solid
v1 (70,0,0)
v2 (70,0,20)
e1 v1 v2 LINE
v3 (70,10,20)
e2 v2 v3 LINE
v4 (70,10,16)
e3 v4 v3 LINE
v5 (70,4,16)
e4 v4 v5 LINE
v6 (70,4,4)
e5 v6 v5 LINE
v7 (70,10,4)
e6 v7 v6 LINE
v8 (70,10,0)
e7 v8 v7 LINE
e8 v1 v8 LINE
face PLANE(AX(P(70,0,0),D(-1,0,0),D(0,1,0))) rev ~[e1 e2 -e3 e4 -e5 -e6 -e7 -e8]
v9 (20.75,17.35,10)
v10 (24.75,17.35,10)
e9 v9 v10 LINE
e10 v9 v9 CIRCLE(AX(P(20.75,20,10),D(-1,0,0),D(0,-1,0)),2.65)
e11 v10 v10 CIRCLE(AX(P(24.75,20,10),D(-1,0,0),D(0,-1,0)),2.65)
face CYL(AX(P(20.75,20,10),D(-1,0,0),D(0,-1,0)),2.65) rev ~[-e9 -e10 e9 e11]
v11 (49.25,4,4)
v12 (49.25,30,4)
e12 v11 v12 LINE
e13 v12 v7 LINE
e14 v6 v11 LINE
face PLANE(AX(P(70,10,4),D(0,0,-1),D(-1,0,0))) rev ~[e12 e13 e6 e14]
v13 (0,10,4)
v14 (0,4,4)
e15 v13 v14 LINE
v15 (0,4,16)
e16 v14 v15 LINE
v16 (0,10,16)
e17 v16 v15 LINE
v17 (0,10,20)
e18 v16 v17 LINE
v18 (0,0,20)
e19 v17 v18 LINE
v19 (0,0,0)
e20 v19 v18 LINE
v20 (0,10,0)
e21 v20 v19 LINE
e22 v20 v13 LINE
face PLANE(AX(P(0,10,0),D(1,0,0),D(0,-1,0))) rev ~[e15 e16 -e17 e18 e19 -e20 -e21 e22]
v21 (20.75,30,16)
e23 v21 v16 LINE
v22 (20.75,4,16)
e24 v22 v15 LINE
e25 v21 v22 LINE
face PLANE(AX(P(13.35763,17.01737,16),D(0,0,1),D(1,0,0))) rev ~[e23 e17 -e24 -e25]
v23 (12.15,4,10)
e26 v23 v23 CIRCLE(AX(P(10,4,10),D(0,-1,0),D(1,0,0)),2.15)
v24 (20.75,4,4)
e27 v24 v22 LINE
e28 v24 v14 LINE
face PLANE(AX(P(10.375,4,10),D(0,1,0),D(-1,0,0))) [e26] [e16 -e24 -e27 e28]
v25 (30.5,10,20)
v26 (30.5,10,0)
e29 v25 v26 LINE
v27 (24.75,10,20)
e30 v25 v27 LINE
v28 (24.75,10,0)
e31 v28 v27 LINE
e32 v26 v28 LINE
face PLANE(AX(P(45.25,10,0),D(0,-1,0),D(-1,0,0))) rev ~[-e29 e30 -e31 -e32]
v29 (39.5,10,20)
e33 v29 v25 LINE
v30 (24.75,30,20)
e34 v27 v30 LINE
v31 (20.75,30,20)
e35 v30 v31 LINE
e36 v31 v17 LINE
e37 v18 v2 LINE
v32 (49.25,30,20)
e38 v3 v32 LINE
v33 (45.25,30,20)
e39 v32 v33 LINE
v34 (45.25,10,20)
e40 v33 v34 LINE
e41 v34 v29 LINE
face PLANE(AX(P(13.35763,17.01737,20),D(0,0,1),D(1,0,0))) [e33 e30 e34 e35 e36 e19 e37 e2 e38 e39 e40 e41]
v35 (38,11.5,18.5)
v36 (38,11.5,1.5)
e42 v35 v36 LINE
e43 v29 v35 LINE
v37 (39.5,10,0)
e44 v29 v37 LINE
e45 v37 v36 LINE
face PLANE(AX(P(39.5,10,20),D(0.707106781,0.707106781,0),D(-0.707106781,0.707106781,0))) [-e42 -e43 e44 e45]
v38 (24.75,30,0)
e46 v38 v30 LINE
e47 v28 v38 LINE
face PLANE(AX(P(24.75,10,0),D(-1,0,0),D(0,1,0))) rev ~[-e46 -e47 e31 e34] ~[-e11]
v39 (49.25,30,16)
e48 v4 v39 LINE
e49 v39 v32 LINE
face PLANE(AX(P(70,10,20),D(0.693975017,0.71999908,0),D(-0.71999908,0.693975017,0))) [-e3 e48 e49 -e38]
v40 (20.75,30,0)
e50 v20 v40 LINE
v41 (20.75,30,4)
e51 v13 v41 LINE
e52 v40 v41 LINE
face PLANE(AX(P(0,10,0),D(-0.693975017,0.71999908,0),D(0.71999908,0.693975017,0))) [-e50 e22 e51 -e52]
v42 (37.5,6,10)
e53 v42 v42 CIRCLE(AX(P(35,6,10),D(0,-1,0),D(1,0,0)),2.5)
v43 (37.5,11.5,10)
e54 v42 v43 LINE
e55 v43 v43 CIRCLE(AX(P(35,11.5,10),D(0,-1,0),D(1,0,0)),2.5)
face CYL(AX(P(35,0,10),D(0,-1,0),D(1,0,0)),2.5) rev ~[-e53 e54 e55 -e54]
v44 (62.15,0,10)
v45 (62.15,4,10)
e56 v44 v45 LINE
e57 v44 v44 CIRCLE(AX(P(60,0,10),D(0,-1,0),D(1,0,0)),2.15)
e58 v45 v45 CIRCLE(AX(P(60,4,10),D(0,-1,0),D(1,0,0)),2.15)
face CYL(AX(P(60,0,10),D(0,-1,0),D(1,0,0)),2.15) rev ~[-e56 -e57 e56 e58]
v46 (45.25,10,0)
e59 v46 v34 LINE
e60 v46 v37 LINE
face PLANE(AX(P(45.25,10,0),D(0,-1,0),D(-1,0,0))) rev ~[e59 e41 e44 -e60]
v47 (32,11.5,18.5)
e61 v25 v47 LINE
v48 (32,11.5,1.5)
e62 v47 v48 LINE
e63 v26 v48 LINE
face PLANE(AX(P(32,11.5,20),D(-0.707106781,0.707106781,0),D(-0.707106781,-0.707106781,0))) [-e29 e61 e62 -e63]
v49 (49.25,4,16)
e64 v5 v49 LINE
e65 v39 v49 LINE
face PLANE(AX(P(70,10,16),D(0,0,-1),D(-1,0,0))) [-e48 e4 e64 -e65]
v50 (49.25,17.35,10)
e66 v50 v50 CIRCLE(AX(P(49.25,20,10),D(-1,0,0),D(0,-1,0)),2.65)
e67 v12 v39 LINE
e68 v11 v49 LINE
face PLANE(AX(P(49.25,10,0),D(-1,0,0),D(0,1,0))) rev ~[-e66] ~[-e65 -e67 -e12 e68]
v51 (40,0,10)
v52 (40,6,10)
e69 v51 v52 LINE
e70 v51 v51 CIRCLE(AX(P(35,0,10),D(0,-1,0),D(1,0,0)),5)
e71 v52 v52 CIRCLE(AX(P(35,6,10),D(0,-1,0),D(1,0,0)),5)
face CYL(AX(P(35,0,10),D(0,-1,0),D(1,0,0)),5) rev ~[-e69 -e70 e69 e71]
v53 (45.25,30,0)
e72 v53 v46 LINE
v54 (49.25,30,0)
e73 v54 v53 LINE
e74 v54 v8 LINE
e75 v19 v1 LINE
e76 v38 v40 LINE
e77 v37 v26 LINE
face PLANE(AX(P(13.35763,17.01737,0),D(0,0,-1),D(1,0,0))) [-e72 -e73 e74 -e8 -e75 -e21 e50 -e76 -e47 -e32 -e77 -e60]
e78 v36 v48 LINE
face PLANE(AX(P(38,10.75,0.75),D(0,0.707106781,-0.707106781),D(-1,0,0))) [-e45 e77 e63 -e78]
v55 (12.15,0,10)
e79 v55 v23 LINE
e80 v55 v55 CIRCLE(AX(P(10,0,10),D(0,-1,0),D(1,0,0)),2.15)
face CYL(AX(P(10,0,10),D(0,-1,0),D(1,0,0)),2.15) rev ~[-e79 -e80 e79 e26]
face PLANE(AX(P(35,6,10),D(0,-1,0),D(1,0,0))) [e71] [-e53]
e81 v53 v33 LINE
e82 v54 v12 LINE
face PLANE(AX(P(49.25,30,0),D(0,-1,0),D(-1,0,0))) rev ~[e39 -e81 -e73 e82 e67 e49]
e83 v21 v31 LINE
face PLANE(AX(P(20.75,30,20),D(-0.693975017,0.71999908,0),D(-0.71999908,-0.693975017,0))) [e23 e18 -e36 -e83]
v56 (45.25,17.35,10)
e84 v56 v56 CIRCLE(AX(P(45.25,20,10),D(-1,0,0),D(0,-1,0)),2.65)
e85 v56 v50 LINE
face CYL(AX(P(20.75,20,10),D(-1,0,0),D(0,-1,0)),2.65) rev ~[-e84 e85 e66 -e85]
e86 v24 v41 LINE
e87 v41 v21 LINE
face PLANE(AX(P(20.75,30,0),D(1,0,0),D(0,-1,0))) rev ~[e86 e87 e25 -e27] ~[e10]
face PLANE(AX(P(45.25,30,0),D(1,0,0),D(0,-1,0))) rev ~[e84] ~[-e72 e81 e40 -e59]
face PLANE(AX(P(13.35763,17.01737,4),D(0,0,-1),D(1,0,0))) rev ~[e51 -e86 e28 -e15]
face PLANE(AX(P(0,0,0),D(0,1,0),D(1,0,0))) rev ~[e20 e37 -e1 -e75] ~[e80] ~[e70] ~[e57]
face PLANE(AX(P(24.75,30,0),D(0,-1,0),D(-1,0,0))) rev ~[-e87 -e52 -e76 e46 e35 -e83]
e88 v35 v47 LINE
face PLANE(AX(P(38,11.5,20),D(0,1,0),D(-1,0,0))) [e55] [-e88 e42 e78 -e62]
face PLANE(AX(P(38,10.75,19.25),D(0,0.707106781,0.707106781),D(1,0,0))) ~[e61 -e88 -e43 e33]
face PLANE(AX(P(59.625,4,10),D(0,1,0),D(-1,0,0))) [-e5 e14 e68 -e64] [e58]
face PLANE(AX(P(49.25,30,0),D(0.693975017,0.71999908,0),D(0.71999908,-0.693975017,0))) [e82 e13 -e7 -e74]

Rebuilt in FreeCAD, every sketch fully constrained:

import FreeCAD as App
import Part
import Sketcher

V = App.Vector
Q = App.Units.Quantity


def edges_at(feature, points):
    """Names of the edges that pass closest to the given points."""
    edges = feature.Shape.Edges
    near = lambda p: min(range(len(edges)), key=lambda i: edges[i].distToShape(Part.Vertex(*p))[0])
    return sorted({f"Edge{near(p) + 1}" for p in points})

doc = App.newDocument("Part")
params = doc.addObject("Spreadsheet::Sheet", "Params")
for row, (alias, value) in enumerate([
    ("sketch1_width", "70 mm"),
    ("sketch1_width2", "4 mm"),
    ("sketch1_height", "10 mm"),
    ("sketch1_height2", "20 mm"),
    ("sketch1_width3", "20.5 mm"),
    ("pad1_length", "20 mm"),
    ("sketch2_width", "9 mm"),
    ("sketch2_width2", "6 mm"),
    ("pad2_length", "20 mm"),
    ("sketch3_height", "12 mm"),
    ("sketch3_width", "20.75 mm"),
    ("pocket1_length", "6 mm"),
    ("sketch4_height", "20 mm"),
    ("sketch4_width", "20.75 mm"),
    ("pad3_length", "4 mm"),
    ("sketch5_height", "20 mm"),
    ("sketch5_width", "20.75 mm"),
    ("pad4_length", "4 mm"),
    ("sketch6_diameter", "5 mm"),
    ("sketch6_diameter2", "4.3 mm"),
    ("sketch7_diameter", "10 mm"),
    ("pocket3_length", "6 mm"),
    ("chamfer_size", "1.5 mm"),
    ("sketch8_diameter", "5.3 mm"),
], start=1):
    params.set(f"A{row}", alias)
    params.set(f"B{row}", "=" + value)
    params.setAlias(f"B{row}", alias)

body = doc.addObject("PartDesign::Body", "Body")

# Sketch on XY plane
sketch1 = body.newObject("Sketcher::SketchObject", "Sketch")
sketch1.AttachmentSupport = (doc.getObject("XY_Plane"), [""])
sketch1.MapMode = "FlatFace"
sketch1.addGeometry(Part.LineSegment(V(0, 10, 0), V(0, 0, 0)), False)
sketch1.addGeometry(Part.LineSegment(V(0, 0, 0), V(70, 0, 0)), False)
sketch1.addGeometry(Part.LineSegment(V(70, 0, 0), V(70, 10, 0)), False)
sketch1.addGeometry(Part.LineSegment(V(70, 10, 0), V(49.2, 10, 0)), False)
sketch1.addGeometry(Part.LineSegment(V(49.2, 10, 0), V(49.2, 30, 0)), False)
sketch1.addGeometry(Part.LineSegment(V(49.2, 30, 0), V(45.2, 30, 0)), False)
sketch1.addGeometry(Part.LineSegment(V(45.2, 30, 0), V(45.2, 10, 0)), False)
sketch1.addGeometry(Part.LineSegment(V(45.2, 10, 0), V(24.8, 10, 0)), False)
sketch1.addGeometry(Part.LineSegment(V(24.8, 10, 0), V(24.8, 30, 0)), False)
sketch1.addGeometry(Part.LineSegment(V(24.8, 30, 0), V(20.8, 30, 0)), False)
sketch1.addGeometry(Part.LineSegment(V(20.8, 30, 0), V(20.8, 10, 0)), False)
sketch1.addGeometry(Part.LineSegment(V(20.8, 10, 0), V(0, 10, 0)), False)
sketch1.addConstraint(Sketcher.Constraint("Coincident", 0, 2, 1, 1))
sketch1.addConstraint(Sketcher.Constraint("Coincident", 1, 2, 2, 1))
sketch1.addConstraint(Sketcher.Constraint("Coincident", 2, 2, 3, 1))
sketch1.addConstraint(Sketcher.Constraint("Coincident", 3, 2, 4, 1))
sketch1.addConstraint(Sketcher.Constraint("Coincident", 4, 2, 5, 1))
sketch1.addConstraint(Sketcher.Constraint("Coincident", 5, 2, 6, 1))
sketch1.addConstraint(Sketcher.Constraint("Coincident", 6, 2, 7, 1))
sketch1.addConstraint(Sketcher.Constraint("Coincident", 7, 2, 8, 1))
sketch1.addConstraint(Sketcher.Constraint("Coincident", 8, 2, 9, 1))
sketch1.addConstraint(Sketcher.Constraint("Coincident", 9, 2, 10, 1))
sketch1.addConstraint(Sketcher.Constraint("Coincident", 10, 2, 11, 1))
sketch1.addConstraint(Sketcher.Constraint("Coincident", 11, 2, 0, 1))
sketch1.addConstraint(Sketcher.Constraint("Vertical", 0))
sketch1.addConstraint(Sketcher.Constraint("Horizontal", 1))
sketch1.addConstraint(Sketcher.Constraint("Vertical", 2))
sketch1.addConstraint(Sketcher.Constraint("Horizontal", 3))
sketch1.addConstraint(Sketcher.Constraint("Vertical", 4))
sketch1.addConstraint(Sketcher.Constraint("Horizontal", 5))
sketch1.addConstraint(Sketcher.Constraint("Vertical", 6))
sketch1.addConstraint(Sketcher.Constraint("Horizontal", 7))
sketch1.addConstraint(Sketcher.Constraint("Vertical", 8))
sketch1.addConstraint(Sketcher.Constraint("Horizontal", 9))
sketch1.addConstraint(Sketcher.Constraint("Vertical", 10))
sketch1.addConstraint(Sketcher.Constraint("Horizontal", 11))
sketch1.addConstraint(Sketcher.Constraint("Coincident", 0, 2, -1, 1))
sketch1.addConstraint(Sketcher.Constraint("Horizontal", 3, 2, 6, 2))
sketch1.addConstraint(Sketcher.Constraint("Horizontal", 5, 2, 8, 2))
sketch1.addConstraint(Sketcher.Constraint("Horizontal", 7, 2, 10, 2))
sketch1.addConstraint(Sketcher.Constraint("Equal", 5, 9))
sketch1.addConstraint(Sketcher.Constraint("Equal", 3, 11))
sketch1.addConstraint(Sketcher.Constraint("DistanceX", 1, 1, 1, 2, Q("70 mm")))
sketch1.addConstraint(Sketcher.Constraint("DistanceX", 5, 2, 5, 1, Q("4 mm")))
sketch1.addConstraint(Sketcher.Constraint("DistanceY", 0, 2, 0, 1, Q("10 mm")))
sketch1.addConstraint(Sketcher.Constraint("DistanceY", 4, 1, 4, 2, Q("20 mm")))
sketch1.addConstraint(Sketcher.Constraint("DistanceX", 7, 2, 7, 1, Q("20.5 mm")))
sketch1.setExpression("Constraints[30]", "Params.sketch1_width")
sketch1.setExpression("Constraints[31]", "Params.sketch1_width2")
sketch1.setExpression("Constraints[32]", "Params.sketch1_height")
sketch1.setExpression("Constraints[33]", "Params.sketch1_height2")
sketch1.setExpression("Constraints[34]", "Params.sketch1_width3")
pad1 = body.newObject("PartDesign::Pad", "Pad")
pad1.Profile = sketch1
pad1.setExpression("Length", "Params.pad1_length")

# Sketch on XY plane
sketch2 = body.newObject("Sketcher::SketchObject", "Sketch001")
sketch2.AttachmentSupport = (doc.getObject("XY_Plane"), [""])
sketch2.MapMode = "FlatFace"
sketch2.AttachmentOffset = App.Placement(V(0, 0, 20), App.Rotation())
sketch2.addGeometry(Part.LineSegment(V(32, 11.5, 0), V(30.5, 10, 0)), False)
sketch2.addGeometry(Part.LineSegment(V(30.5, 10, 0), V(39.5, 10, 0)), False)
sketch2.addGeometry(Part.LineSegment(V(39.5, 10, 0), V(38, 11.5, 0)), False)
sketch2.addGeometry(Part.LineSegment(V(38, 11.5, 0), V(32, 11.5, 0)), False)
sketch2.addConstraint(Sketcher.Constraint("Coincident", 0, 2, 1, 1))
sketch2.addConstraint(Sketcher.Constraint("Coincident", 1, 2, 2, 1))
sketch2.addConstraint(Sketcher.Constraint("Coincident", 2, 2, 3, 1))
sketch2.addConstraint(Sketcher.Constraint("Coincident", 3, 2, 0, 1))
sketch2.addConstraint(Sketcher.Constraint("Horizontal", 1))
sketch2.addConstraint(Sketcher.Constraint("Horizontal", 3))
sketch2.addConstraint(Sketcher.Constraint("Perpendicular", 0, 2))
sketch2.addConstraint(Sketcher.Constraint("Equal", 0, 2))
sketch2.addConstraint(Sketcher.Constraint("DistanceX", 1, 1, 1, 2, Q("9 mm")))
sketch2.addConstraint(Sketcher.Constraint("DistanceX", 3, 2, 3, 1, Q("6 mm")))
sketch2.addConstraint(Sketcher.Constraint("DistanceY", -1, 1, 0, 2, Q("10 mm")))
sketch2.addConstraint(Sketcher.Constraint("DistanceX", -1, 1, 2, 2, Q("38 mm")))
sketch2.setExpression("Constraints[8]", "Params.sketch2_width")
sketch2.setExpression("Constraints[9]", "Params.sketch2_width2")
pad2 = body.newObject("PartDesign::Pad", "Pad001")
pad2.Profile = sketch2
pad2.setExpression("Length", "Params.pad2_length")
pad2.Reversed = True

# Sketch on XZ plane
sketch3 = body.newObject("Sketcher::SketchObject", "Sketch002")
sketch3.AttachmentSupport = (doc.getObject("XZ_Plane"), [""])
sketch3.MapMode = "FlatFace"
sketch3.AttachmentOffset = App.Placement(V(0, 0, -10), App.Rotation())
sketch3.addGeometry(Part.LineSegment(V(21, 16, 0), V(21, 4, 0)), False)
sketch3.addGeometry(Part.LineSegment(V(21, 4, 0), V(0, 4, 0)), False)
sketch3.addGeometry(Part.LineSegment(V(0, 4, 0), V(0, 16, 0)), False)
sketch3.addGeometry(Part.LineSegment(V(0, 16, 0), V(21, 16, 0)), False)
sketch3.addGeometry(Part.LineSegment(V(70, 16, 0), V(70, 4, 0)), False)
sketch3.addGeometry(Part.LineSegment(V(70, 4, 0), V(49, 4, 0)), False)
sketch3.addGeometry(Part.LineSegment(V(49, 4, 0), V(49, 16, 0)), False)
sketch3.addGeometry(Part.LineSegment(V(49, 16, 0), V(70, 16, 0)), False)
sketch3.addConstraint(Sketcher.Constraint("Coincident", 0, 2, 1, 1))
sketch3.addConstraint(Sketcher.Constraint("Coincident", 1, 2, 2, 1))
sketch3.addConstraint(Sketcher.Constraint("Coincident", 2, 2, 3, 1))
sketch3.addConstraint(Sketcher.Constraint("Coincident", 3, 2, 0, 1))
sketch3.addConstraint(Sketcher.Constraint("Coincident", 4, 2, 5, 1))
sketch3.addConstraint(Sketcher.Constraint("Coincident", 5, 2, 6, 1))
sketch3.addConstraint(Sketcher.Constraint("Coincident", 6, 2, 7, 1))
sketch3.addConstraint(Sketcher.Constraint("Coincident", 7, 2, 4, 1))
sketch3.addConstraint(Sketcher.Constraint("Vertical", 0))
sketch3.addConstraint(Sketcher.Constraint("Horizontal", 1))
sketch3.addConstraint(Sketcher.Constraint("Vertical", 2))
sketch3.addConstraint(Sketcher.Constraint("Horizontal", 3))
sketch3.addConstraint(Sketcher.Constraint("Vertical", 4))
sketch3.addConstraint(Sketcher.Constraint("Horizontal", 5))
sketch3.addConstraint(Sketcher.Constraint("Vertical", 6))
sketch3.addConstraint(Sketcher.Constraint("Horizontal", 7))
sketch3.addConstraint(Sketcher.Constraint("PointOnObject", 1, 2, -2))
sketch3.addConstraint(Sketcher.Constraint("Horizontal", 1, 2, 4, 2))
sketch3.addConstraint(Sketcher.Constraint("Horizontal", 3, 2, 6, 2))
sketch3.addConstraint(Sketcher.Constraint("Equal", 3, 5))
sketch3.addConstraint(Sketcher.Constraint("DistanceY", 0, 2, 0, 1, Q("12 mm")))
sketch3.addConstraint(Sketcher.Constraint("DistanceY", -1, 1, 0, 2, Q("4 mm")))
sketch3.addConstraint(Sketcher.Constraint("DistanceX", -1, 1, 4, 2, Q("70 mm")))
sketch3.addConstraint(Sketcher.Constraint("DistanceX", 1, 2, 1, 1, Q("20.75 mm")))
sketch3.setExpression("Constraints[20]", "Params.sketch3_height")
sketch3.setExpression("Constraints[23]", "Params.sketch3_width")
pocket1 = body.newObject("PartDesign::Pocket", "Pocket")
pocket1.Profile = sketch3
pocket1.setExpression("Length", "Params.pocket1_length")
pocket1.Reversed = True

# Sketch on XY plane
sketch4 = body.newObject("Sketcher::SketchObject", "Sketch003")
sketch4.AttachmentSupport = (doc.getObject("XY_Plane"), [""])
sketch4.MapMode = "FlatFace"
sketch4.addGeometry(Part.LineSegment(V(21, 10, 0), V(0, 10, 0)), False)
sketch4.addGeometry(Part.LineSegment(V(0, 10, 0), V(21, 30, 0)), False)
sketch4.addGeometry(Part.LineSegment(V(21, 30, 0), V(21, 10, 0)), False)
sketch4.addGeometry(Part.LineSegment(V(70, 10, 0), V(49, 10, 0)), False)
sketch4.addGeometry(Part.LineSegment(V(49, 10, 0), V(49, 30, 0)), False)
sketch4.addGeometry(Part.LineSegment(V(49, 30, 0), V(70, 10, 0)), False)
sketch4.addConstraint(Sketcher.Constraint("Coincident", 0, 2, 1, 1))
sketch4.addConstraint(Sketcher.Constraint("Coincident", 1, 2, 2, 1))
sketch4.addConstraint(Sketcher.Constraint("Coincident", 2, 2, 0, 1))
sketch4.addConstraint(Sketcher.Constraint("Coincident", 3, 2, 4, 1))
sketch4.addConstraint(Sketcher.Constraint("Coincident", 4, 2, 5, 1))
sketch4.addConstraint(Sketcher.Constraint("Coincident", 5, 2, 3, 1))
sketch4.addConstraint(Sketcher.Constraint("Horizontal", 0))
sketch4.addConstraint(Sketcher.Constraint("Vertical", 2))
sketch4.addConstraint(Sketcher.Constraint("Horizontal", 3))
sketch4.addConstraint(Sketcher.Constraint("Vertical", 4))
sketch4.addConstraint(Sketcher.Constraint("PointOnObject", 0, 2, -2))
sketch4.addConstraint(Sketcher.Constraint("Horizontal", 2, 2, 3, 2))
sketch4.addConstraint(Sketcher.Constraint("Horizontal", 1, 2, 4, 2))
sketch4.addConstraint(Sketcher.Constraint("Equal", 0, 3))
sketch4.addConstraint(Sketcher.Constraint("DistanceY", 2, 2, 2, 1, Q("20 mm")))
sketch4.addConstraint(Sketcher.Constraint("DistanceY", -1, 1, 0, 2, Q("10 mm")))
sketch4.addConstraint(Sketcher.Constraint("DistanceX", -1, 1, 5, 2, Q("70 mm")))
sketch4.addConstraint(Sketcher.Constraint("DistanceX", 0, 2, 0, 1, Q("20.75 mm")))
sketch4.setExpression("Constraints[14]", "Params.sketch4_height")
sketch4.setExpression("Constraints[17]", "Params.sketch4_width")
pad3 = body.newObject("PartDesign::Pad", "Pad002")
pad3.Profile = sketch4
pad3.setExpression("Length", "Params.pad3_length")

# Sketch on XY plane
sketch5 = body.newObject("Sketcher::SketchObject", "Sketch004")
sketch5.AttachmentSupport = (doc.getObject("XY_Plane"), [""])
sketch5.MapMode = "FlatFace"
sketch5.AttachmentOffset = App.Placement(V(0, 0, 20), App.Rotation())
sketch5.addGeometry(Part.LineSegment(V(21, 30, 0), V(0, 10, 0)), False)
sketch5.addGeometry(Part.LineSegment(V(0, 10, 0), V(21, 10, 0)), False)
sketch5.addGeometry(Part.LineSegment(V(21, 10, 0), V(21, 30, 0)), False)
sketch5.addGeometry(Part.LineSegment(V(49, 10, 0), V(70, 10, 0)), False)
sketch5.addGeometry(Part.LineSegment(V(70, 10, 0), V(49, 30, 0)), False)
sketch5.addGeometry(Part.LineSegment(V(49, 30, 0), V(49, 10, 0)), False)
sketch5.addConstraint(Sketcher.Constraint("Coincident", 0, 2, 1, 1))
sketch5.addConstraint(Sketcher.Constraint("Coincident", 1, 2, 2, 1))
sketch5.addConstraint(Sketcher.Constraint("Coincident", 2, 2, 0, 1))
sketch5.addConstraint(Sketcher.Constraint("Coincident", 3, 2, 4, 1))
sketch5.addConstraint(Sketcher.Constraint("Coincident", 4, 2, 5, 1))
sketch5.addConstraint(Sketcher.Constraint("Coincident", 5, 2, 3, 1))
sketch5.addConstraint(Sketcher.Constraint("Horizontal", 1))
sketch5.addConstraint(Sketcher.Constraint("Vertical", 2))
sketch5.addConstraint(Sketcher.Constraint("Horizontal", 3))
sketch5.addConstraint(Sketcher.Constraint("Vertical", 5))
sketch5.addConstraint(Sketcher.Constraint("PointOnObject", 0, 2, -2))
sketch5.addConstraint(Sketcher.Constraint("Horizontal", 1, 2, 3, 2))
sketch5.addConstraint(Sketcher.Constraint("Horizontal", 2, 2, 4, 2))
sketch5.addConstraint(Sketcher.Constraint("Equal", 1, 3))
sketch5.addConstraint(Sketcher.Constraint("DistanceY", 2, 1, 2, 2, Q("20 mm")))
sketch5.addConstraint(Sketcher.Constraint("DistanceY", -1, 1, 0, 2, Q("10 mm")))
sketch5.addConstraint(Sketcher.Constraint("DistanceX", -1, 1, 3, 2, Q("70 mm")))
sketch5.addConstraint(Sketcher.Constraint("DistanceX", 1, 1, 1, 2, Q("20.75 mm")))
sketch5.setExpression("Constraints[14]", "Params.sketch5_height")
sketch5.setExpression("Constraints[17]", "Params.sketch5_width")
pad4 = body.newObject("PartDesign::Pad", "Pad003")
pad4.Profile = sketch5
pad4.setExpression("Length", "Params.pad4_length")
pad4.Reversed = True

# Sketch on XZ plane
sketch6 = body.newObject("Sketcher::SketchObject", "Sketch005")
sketch6.AttachmentSupport = (doc.getObject("XZ_Plane"), [""])
sketch6.MapMode = "FlatFace"
sketch6.addGeometry(Part.Circle(V(10, 10, 0), V(0, 0, 1), 2.1), False)
sketch6.addGeometry(Part.Circle(V(35, 10, 0), V(0, 0, 1), 2.5), False)
sketch6.addGeometry(Part.Circle(V(60, 10, 0), V(0, 0, 1), 2.1), False)
sketch6.addConstraint(Sketcher.Constraint("Equal", 0, 2))
sketch6.addConstraint(Sketcher.Constraint("Horizontal", 0, 3, 1, 3))
sketch6.addConstraint(Sketcher.Constraint("Horizontal", 1, 3, 2, 3))
sketch6.addConstraint(Sketcher.Constraint("Diameter", 1, Q("5 mm")))
sketch6.addConstraint(Sketcher.Constraint("Diameter", 0, Q("4.3 mm")))
sketch6.addConstraint(Sketcher.Constraint("DistanceX", -1, 1, 0, 3, Q("10 mm")))
sketch6.addConstraint(Sketcher.Constraint("DistanceY", -1, 1, 0, 3, Q("10 mm")))
sketch6.addConstraint(Sketcher.Constraint("DistanceX", -1, 1, 1, 3, Q("35 mm")))
sketch6.addConstraint(Sketcher.Constraint("DistanceX", -1, 1, 2, 3, Q("60 mm")))
sketch6.setExpression("Constraints[3]", "Params.sketch6_diameter")
sketch6.setExpression("Constraints[4]", "Params.sketch6_diameter2")
pocket2 = body.newObject("PartDesign::Pocket", "Pocket001")
pocket2.Profile = sketch6
pocket2.Type = "ThroughAll"

# Sketch on XZ plane
sketch7 = body.newObject("Sketcher::SketchObject", "Sketch006")
sketch7.AttachmentSupport = (doc.getObject("XZ_Plane"), [""])
sketch7.MapMode = "FlatFace"
sketch7.addGeometry(Part.Circle(V(35, 10, 0), V(0, 0, 1), 5), False)
sketch7.addConstraint(Sketcher.Constraint("Diameter", 0, Q("10 mm")))
sketch7.addConstraint(Sketcher.Constraint("DistanceX", -1, 1, 0, 3, Q("35 mm")))
sketch7.addConstraint(Sketcher.Constraint("DistanceY", -1, 1, 0, 3, Q("10 mm")))
sketch7.setExpression("Constraints[0]", "Params.sketch7_diameter")
pocket3 = body.newObject("PartDesign::Pocket", "Pocket002")
pocket3.Profile = sketch7
pocket3.setExpression("Length", "Params.pocket3_length")
doc.recompute()

chamfer = body.newObject("PartDesign::Chamfer", "Chamfer")
chamfer.Base = (pocket3, edges_at(pocket3, [(35, 11.5, 20), (35, 11.5, 0)]))
chamfer.setExpression("Size", "Params.chamfer_size")

# Sketch on YZ plane
sketch8 = body.newObject("Sketcher::SketchObject", "Sketch007")
sketch8.AttachmentSupport = (doc.getObject("YZ_Plane"), [""])
sketch8.MapMode = "FlatFace"
sketch8.AttachmentOffset = App.Placement(V(0, 0, 20.75), App.Rotation())
sketch8.addGeometry(Part.Circle(V(20, 10, 0), V(0, 0, 1), 2.6), False)
sketch8.addConstraint(Sketcher.Constraint("Diameter", 0, Q("5.3 mm")))
sketch8.addConstraint(Sketcher.Constraint("DistanceX", -1, 1, 0, 3, Q("20 mm")))
sketch8.addConstraint(Sketcher.Constraint("DistanceY", -1, 1, 0, 3, Q("10 mm")))
sketch8.setExpression("Constraints[0]", "Params.sketch8_diameter")
pocket4 = body.newObject("PartDesign::Pocket", "Pocket003")
pocket4.Profile = sketch8
pocket4.Type = "ThroughAll"
pocket4.Reversed = True

doc.recompute()
